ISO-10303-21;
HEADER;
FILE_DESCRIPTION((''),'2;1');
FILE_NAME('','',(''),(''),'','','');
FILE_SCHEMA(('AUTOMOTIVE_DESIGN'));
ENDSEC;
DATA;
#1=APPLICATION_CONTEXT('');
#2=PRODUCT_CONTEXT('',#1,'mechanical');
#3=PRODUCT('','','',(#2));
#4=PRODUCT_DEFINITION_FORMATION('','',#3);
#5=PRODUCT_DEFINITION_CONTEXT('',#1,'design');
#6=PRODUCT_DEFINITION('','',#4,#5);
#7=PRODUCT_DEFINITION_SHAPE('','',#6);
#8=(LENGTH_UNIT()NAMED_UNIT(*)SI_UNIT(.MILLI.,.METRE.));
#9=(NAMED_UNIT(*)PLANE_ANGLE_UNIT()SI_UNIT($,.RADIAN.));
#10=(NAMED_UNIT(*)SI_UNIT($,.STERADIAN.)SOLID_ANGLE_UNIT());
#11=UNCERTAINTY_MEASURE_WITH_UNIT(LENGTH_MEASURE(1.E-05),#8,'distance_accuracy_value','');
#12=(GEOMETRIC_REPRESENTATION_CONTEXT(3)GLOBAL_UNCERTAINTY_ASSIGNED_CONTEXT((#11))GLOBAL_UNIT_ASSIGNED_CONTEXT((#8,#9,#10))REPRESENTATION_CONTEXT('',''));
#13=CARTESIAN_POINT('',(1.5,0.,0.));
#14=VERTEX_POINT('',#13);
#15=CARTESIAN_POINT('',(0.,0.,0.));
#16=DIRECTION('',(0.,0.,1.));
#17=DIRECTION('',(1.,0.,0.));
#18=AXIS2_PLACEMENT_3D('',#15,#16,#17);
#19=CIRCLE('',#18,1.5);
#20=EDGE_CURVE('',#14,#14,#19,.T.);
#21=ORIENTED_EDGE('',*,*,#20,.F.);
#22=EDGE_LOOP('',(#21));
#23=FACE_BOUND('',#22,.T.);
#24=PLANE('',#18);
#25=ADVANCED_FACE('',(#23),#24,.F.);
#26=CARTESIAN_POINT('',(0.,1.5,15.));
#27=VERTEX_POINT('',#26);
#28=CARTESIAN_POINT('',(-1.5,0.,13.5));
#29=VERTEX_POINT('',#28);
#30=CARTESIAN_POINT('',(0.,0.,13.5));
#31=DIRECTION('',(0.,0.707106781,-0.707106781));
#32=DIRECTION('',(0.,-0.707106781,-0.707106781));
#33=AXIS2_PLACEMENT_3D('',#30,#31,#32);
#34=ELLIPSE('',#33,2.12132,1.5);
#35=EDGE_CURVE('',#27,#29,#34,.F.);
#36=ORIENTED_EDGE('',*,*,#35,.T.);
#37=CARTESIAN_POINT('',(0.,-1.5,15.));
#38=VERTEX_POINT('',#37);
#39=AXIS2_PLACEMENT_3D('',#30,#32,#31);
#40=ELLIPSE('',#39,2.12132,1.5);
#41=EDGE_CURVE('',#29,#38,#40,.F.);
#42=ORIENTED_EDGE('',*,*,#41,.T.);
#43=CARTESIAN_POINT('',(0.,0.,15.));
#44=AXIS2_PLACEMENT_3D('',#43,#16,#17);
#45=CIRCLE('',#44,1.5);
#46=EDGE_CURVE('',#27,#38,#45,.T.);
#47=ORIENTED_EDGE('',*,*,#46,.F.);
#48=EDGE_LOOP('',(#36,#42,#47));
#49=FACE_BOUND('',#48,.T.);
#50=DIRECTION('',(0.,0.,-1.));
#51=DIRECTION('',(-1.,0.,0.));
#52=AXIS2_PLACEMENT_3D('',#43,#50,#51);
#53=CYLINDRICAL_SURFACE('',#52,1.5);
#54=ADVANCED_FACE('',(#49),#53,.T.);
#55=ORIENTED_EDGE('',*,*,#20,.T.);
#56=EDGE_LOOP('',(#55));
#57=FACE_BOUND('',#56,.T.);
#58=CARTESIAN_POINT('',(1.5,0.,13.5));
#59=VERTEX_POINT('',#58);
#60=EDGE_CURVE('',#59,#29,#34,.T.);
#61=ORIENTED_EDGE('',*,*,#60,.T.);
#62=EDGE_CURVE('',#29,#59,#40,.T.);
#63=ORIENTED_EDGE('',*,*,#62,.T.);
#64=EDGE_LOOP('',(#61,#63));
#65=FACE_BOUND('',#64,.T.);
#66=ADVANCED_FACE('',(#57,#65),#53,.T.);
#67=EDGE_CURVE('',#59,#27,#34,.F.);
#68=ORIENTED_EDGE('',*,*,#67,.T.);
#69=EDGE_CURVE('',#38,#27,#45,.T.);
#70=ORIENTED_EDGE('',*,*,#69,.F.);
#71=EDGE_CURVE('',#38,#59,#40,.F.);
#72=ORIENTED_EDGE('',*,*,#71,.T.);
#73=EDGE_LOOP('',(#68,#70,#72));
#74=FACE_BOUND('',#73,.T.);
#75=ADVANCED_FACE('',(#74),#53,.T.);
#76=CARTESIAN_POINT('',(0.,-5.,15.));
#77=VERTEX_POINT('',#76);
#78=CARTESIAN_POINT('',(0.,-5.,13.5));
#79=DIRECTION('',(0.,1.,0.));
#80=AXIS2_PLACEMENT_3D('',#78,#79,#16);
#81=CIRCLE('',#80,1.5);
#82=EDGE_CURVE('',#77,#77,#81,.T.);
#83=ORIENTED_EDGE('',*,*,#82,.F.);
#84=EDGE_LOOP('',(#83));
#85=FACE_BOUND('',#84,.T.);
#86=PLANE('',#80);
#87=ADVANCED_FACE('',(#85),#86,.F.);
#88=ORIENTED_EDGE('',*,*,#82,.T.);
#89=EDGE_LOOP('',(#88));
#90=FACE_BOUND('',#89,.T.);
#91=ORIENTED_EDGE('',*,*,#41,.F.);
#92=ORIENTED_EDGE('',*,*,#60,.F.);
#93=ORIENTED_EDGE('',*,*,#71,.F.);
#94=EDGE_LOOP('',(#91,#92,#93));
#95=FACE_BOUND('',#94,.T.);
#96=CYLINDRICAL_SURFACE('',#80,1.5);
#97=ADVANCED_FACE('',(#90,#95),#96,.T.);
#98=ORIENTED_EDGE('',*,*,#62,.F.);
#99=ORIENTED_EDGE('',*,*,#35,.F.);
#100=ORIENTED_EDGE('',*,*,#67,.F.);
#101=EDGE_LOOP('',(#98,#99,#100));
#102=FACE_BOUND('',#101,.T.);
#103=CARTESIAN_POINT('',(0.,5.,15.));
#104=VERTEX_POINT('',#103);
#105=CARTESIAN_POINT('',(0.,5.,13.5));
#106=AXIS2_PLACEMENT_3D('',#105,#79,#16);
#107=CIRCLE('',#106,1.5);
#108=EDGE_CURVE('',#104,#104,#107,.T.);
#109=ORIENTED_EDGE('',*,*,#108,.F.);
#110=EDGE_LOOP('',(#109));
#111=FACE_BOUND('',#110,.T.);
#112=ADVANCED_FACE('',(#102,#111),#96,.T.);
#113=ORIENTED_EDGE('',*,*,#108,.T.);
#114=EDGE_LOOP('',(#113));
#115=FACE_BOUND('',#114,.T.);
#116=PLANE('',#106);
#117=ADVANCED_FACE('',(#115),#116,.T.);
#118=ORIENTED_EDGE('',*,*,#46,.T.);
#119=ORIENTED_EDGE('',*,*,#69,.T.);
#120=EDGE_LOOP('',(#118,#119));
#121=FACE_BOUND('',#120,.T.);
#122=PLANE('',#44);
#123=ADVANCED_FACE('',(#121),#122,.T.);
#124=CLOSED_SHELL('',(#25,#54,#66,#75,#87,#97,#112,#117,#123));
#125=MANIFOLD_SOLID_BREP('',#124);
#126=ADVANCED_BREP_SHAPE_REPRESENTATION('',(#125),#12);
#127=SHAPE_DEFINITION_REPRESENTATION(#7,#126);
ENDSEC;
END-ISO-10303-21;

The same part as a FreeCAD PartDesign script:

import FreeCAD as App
import Part
import Sketcher

V = App.Vector
Q = App.Units.Quantity

doc = App.newDocument("Part")
body = doc.addObject("PartDesign::Body", "Body")

sketch1 = doc.addObject("Sketcher::SketchObject", "Sketch")
body.addObject(sketch1)
sketch1.AttachmentSupport = (doc.XY_Plane, [""])
sketch1.MapMode = "FlatFace"
sketch1.addGeometry(Part.Circle(V(0, 0, 0), V(0, 0, 1), 1.5), False)
sketch1.addConstraint([
    Sketcher.Constraint("Coincident", 0, 3, -1, 1),
    Sketcher.Constraint("Diameter", 0, Q("3 mm")),
])
pad1 = doc.addObject("PartDesign::Pad", "Pad")
body.addObject(pad1)
pad1.Profile = sketch1
pad1.Length = 15

sketch2 = doc.addObject("Sketcher::SketchObject", "Sketch001")
body.addObject(sketch2)
sketch2.AttachmentSupport = (doc.XZ_Plane, [""])
sketch2.MapMode = "FlatFace"
sketch2.addGeometry(Part.Circle(V(0, 13.5, 0), V(0, 0, 1), 1.5), False)
sketch2.addConstraint([
    Sketcher.Constraint("PointOnObject", 0, 3, -2),
    Sketcher.Constraint("Diameter", 0, Q("3 mm")),
    Sketcher.Constraint("DistanceY", -1, 1, 0, 3, Q("13.5 mm")),
])
pad2 = doc.addObject("PartDesign::Pad", "Pad001")
body.addObject(pad2)
pad2.Profile = sketch2
pad2.Type = "TwoLengths"
pad2.Length = 5
pad2.Length2 = 5
pad2.Reversed = True

doc.recompute()
